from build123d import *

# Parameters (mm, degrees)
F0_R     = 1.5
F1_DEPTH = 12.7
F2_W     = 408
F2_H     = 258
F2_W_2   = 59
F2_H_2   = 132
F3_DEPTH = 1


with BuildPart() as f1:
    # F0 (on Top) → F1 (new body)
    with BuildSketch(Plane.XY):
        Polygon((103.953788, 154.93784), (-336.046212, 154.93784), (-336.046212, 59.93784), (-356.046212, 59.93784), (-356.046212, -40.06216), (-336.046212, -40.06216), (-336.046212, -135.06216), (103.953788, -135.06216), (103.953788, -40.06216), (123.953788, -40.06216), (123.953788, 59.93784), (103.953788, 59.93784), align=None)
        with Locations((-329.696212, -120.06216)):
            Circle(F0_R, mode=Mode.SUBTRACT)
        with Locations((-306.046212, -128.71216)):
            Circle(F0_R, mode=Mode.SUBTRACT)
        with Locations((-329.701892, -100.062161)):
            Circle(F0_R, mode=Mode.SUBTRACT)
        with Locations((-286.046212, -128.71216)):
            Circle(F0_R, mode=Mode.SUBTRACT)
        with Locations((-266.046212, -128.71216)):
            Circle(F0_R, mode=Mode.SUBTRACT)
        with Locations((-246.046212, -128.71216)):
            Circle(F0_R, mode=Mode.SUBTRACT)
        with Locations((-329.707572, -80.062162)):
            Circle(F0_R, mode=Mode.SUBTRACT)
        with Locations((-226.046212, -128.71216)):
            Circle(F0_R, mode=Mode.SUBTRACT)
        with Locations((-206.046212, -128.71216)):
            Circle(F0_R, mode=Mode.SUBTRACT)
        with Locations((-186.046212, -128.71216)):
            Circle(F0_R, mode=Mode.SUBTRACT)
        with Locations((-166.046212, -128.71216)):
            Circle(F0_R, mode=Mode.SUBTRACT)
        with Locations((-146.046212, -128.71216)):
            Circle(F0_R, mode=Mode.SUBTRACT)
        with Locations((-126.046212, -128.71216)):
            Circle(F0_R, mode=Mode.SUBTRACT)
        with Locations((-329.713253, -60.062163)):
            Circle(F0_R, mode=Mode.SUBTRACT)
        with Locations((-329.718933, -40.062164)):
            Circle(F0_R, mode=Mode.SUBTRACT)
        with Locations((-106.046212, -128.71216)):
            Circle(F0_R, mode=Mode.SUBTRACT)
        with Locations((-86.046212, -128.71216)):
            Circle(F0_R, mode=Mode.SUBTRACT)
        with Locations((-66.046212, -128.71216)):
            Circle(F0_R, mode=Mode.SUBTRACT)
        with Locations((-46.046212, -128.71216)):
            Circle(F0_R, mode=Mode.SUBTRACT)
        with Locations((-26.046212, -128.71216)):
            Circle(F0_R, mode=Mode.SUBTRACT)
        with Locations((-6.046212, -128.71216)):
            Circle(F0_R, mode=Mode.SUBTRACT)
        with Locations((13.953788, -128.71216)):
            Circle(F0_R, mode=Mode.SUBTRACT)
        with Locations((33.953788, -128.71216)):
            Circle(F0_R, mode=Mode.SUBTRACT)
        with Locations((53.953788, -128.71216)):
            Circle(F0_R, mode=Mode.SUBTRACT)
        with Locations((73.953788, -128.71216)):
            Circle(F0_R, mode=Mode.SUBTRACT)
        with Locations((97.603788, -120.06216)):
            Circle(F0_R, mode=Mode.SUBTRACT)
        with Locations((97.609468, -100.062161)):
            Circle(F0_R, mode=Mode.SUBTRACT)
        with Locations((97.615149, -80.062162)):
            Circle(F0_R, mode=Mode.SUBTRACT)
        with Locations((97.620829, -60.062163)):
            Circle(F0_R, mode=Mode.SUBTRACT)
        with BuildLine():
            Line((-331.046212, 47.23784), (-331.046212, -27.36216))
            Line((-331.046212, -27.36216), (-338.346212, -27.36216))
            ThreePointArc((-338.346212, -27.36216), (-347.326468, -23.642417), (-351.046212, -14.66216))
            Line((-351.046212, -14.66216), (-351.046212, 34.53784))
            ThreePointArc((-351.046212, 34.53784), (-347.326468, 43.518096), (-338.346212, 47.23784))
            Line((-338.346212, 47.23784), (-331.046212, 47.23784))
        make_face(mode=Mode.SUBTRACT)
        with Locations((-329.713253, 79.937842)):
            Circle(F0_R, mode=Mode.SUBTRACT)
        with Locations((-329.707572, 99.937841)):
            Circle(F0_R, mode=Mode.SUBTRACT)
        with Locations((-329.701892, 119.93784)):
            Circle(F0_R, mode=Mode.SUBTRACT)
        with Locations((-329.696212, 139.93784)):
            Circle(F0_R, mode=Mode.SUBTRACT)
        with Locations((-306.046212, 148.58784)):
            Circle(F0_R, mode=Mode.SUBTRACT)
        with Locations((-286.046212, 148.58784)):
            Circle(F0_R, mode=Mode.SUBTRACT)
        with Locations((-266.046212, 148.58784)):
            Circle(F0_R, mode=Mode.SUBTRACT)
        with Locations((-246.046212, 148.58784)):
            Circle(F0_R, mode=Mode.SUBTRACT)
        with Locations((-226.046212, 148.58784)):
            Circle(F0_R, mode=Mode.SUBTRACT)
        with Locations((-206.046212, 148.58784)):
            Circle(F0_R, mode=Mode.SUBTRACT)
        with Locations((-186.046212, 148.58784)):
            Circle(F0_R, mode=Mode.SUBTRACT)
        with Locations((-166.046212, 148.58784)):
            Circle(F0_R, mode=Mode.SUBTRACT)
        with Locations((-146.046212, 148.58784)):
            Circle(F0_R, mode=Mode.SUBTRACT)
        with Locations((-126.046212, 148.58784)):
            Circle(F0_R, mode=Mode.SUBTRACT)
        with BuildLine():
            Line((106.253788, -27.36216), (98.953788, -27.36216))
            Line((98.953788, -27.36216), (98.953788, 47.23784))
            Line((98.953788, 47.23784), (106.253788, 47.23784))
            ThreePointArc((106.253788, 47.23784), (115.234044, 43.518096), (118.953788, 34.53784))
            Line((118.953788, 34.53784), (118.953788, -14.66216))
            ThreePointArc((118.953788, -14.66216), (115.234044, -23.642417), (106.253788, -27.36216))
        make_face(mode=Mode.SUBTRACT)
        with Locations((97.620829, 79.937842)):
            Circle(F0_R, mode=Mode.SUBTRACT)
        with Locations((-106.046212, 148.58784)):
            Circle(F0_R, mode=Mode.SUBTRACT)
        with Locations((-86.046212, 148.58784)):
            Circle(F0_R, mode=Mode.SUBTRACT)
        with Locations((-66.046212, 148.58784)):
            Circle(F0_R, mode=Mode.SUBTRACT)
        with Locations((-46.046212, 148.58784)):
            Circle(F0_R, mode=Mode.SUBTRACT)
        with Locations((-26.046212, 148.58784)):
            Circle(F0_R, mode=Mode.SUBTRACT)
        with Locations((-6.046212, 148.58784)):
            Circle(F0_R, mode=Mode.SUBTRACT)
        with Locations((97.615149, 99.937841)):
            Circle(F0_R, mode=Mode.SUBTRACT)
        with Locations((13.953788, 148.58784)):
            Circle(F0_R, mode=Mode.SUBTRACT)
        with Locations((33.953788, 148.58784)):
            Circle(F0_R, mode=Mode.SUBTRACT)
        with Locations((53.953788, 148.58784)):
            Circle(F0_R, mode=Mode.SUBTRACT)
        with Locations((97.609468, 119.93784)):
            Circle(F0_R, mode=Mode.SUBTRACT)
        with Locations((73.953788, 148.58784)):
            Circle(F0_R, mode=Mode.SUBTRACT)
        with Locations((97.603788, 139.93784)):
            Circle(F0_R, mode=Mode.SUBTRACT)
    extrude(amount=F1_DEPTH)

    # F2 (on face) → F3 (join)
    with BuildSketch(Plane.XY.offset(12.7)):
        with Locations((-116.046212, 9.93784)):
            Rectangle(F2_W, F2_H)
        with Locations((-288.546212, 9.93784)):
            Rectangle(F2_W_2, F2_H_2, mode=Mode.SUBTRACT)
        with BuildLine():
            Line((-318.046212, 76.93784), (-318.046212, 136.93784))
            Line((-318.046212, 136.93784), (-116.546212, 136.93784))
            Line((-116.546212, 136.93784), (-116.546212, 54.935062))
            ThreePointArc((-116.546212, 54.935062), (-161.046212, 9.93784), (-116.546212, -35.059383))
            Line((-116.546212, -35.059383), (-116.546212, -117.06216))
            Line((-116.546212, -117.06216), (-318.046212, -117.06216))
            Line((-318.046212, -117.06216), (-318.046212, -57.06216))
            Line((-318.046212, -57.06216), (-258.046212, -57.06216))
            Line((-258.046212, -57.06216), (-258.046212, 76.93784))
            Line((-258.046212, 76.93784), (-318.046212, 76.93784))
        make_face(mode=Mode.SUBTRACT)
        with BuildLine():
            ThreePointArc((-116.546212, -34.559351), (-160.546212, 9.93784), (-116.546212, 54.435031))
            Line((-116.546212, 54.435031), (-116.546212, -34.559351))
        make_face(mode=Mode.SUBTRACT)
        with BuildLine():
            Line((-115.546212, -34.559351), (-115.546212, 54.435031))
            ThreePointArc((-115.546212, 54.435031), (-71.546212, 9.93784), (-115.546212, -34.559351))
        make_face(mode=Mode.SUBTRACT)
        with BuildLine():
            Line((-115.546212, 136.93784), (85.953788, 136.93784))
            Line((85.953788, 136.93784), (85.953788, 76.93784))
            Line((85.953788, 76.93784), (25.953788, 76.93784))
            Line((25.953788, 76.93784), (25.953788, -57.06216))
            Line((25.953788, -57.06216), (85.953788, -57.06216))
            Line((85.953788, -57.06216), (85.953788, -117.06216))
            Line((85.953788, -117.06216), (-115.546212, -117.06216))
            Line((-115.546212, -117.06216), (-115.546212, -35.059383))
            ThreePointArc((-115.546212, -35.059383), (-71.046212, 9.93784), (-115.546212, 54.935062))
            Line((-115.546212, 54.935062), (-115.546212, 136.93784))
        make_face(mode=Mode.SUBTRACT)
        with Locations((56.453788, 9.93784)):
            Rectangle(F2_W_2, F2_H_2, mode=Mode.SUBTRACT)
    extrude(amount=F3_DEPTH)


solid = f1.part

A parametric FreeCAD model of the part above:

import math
import FreeCAD as App
import Part
import Sketcher

V = App.Vector

doc = App.newDocument("Part")
params = doc.addObject("Spreadsheet::Sheet", "Params")
for row, (alias, value) in enumerate([
    ("sketch1_diameter", "3 mm"),
    ("sketch1_radius", "12.699999 mm"),
    ("sketch1_width", "440 mm"),
    ("sketch1_width2", "20 mm"),
    ("sketch1_height", "95 mm"),
    ("pad1_length", "12.7 mm"),
    ("sketch2_radius", "45 mm"),
    ("sketch2_radius2", "44.5 mm"),
    ("sketch2_width", "408 mm"),
    ("sketch2_width2", "59 mm"),
    ("sketch2_width3", "60 mm"),
    ("pad2_length", "1 mm"),
], start=1):
    params.set(f"A{row}", alias)
    params.set(f"B{row}", "=" + value)
    params.setAlias(f"B{row}", alias)

body = doc.addObject("PartDesign::Body", "Body")

sketch1 = body.newObject("Sketcher::SketchObject", "Sketch")
sketch1.AttachmentSupport = (doc.getObject("XY_Plane"), [""])
sketch1.MapMode = "FlatFace"
sketch1.addGeometry(Part.LineSegment(V(103.953788, 154.93784, 0), V(-336.046212, 154.93784, 0)), False)
sketch1.addGeometry(Part.LineSegment(V(-336.046212, 154.93784, 0), V(-336.046212, 59.93784, 0)), False)
sketch1.addGeometry(Part.LineSegment(V(-336.046212, 59.93784, 0), V(-356.046212, 59.93784, 0)), False)
sketch1.addGeometry(Part.LineSegment(V(-356.046212, 59.93784, 0), V(-356.046212, -40.06216, 0)), False)
sketch1.addGeometry(Part.LineSegment(V(-356.046212, -40.06216, 0), V(-336.046212, -40.06216, 0)), False)
sketch1.addGeometry(Part.LineSegment(V(-336.046212, -40.06216, 0), V(-336.046212, -135.06216, 0)), False)
sketch1.addGeometry(Part.LineSegment(V(-336.046212, -135.06216, 0), V(103.953788, -135.06216, 0)), False)
sketch1.addGeometry(Part.LineSegment(V(103.953788, -135.06216, 0), V(103.953788, -40.06216, 0)), False)
sketch1.addGeometry(Part.LineSegment(V(103.953788, -40.06216, 0), V(123.953788, -40.06216, 0)), False)
sketch1.addGeometry(Part.LineSegment(V(123.953788, -40.06216, 0), V(123.953788, 59.93784, 0)), False)
sketch1.addGeometry(Part.LineSegment(V(123.953788, 59.93784, 0), V(103.953788, 59.93784, 0)), False)
sketch1.addGeometry(Part.LineSegment(V(103.953788, 59.93784, 0), V(103.953788, 154.93784, 0)), False)
sketch1.addGeometry(Part.Circle(V(-329.696212, -120.06216, 0), V(0, 0, 1), 1.5), False)
sketch1.addGeometry(Part.Circle(V(-306.046212, -128.71216, 0), V(0, 0, 1), 1.5), False)
sketch1.addGeometry(Part.Circle(V(-329.701892, -100.062161, 0), V(0, 0, 1), 1.5), False)
sketch1.addGeometry(Part.Circle(V(-286.046212, -128.71216, 0), V(0, 0, 1), 1.5), False)
sketch1.addGeometry(Part.Circle(V(-266.046212, -128.71216, 0), V(0, 0, 1), 1.5), False)
sketch1.addGeometry(Part.Circle(V(-246.046212, -128.71216, 0), V(0, 0, 1), 1.5), False)
sketch1.addGeometry(Part.Circle(V(-329.707572, -80.062162, 0), V(0, 0, 1), 1.5), False)
sketch1.addGeometry(Part.Circle(V(-226.046212, -128.71216, 0), V(0, 0, 1), 1.5), False)
sketch1.addGeometry(Part.Circle(V(-206.046212, -128.71216, 0), V(0, 0, 1), 1.5), False)
sketch1.addGeometry(Part.Circle(V(-186.046212, -128.71216, 0), V(0, 0, 1), 1.5), False)
sketch1.addGeometry(Part.Circle(V(-166.046212, -128.71216, 0), V(0, 0, 1), 1.5), False)
sketch1.addGeometry(Part.Circle(V(-146.046212, -128.71216, 0), V(0, 0, 1), 1.5), False)
sketch1.addGeometry(Part.Circle(V(-126.046212, -128.71216, 0), V(0, 0, 1), 1.5), False)
sketch1.addGeometry(Part.Circle(V(-329.713253, -60.062163, 0), V(0, 0, 1), 1.5), False)
sketch1.addGeometry(Part.Circle(V(-329.718933, -40.062164, 0), V(0, 0, 1), 1.5), False)
sketch1.addGeometry(Part.LineSegment(V(-338.346212, 47.23784, 0), V(-331.046212, 47.23784, 0)), False)
sketch1.addGeometry(Part.LineSegment(V(-331.046212, 47.23784, 0), V(-331.046212, -27.36216, 0)), False)
sketch1.addGeometry(Part.LineSegment(V(-331.046212, -27.36216, 0), V(-338.346212, -27.36216, 0)), False)
sketch1.addGeometry(Part.ArcOfCircle(Part.Circle(V(-338.346213, -14.662161, 0), V(0, 0, 1), 12.699999), math.radians(179.999994), math.radians(270.000006)), False)
sketch1.addGeometry(Part.LineSegment(V(-351.046212, -14.66216, 0), V(-351.046212, 34.53784, 0)), False)
sketch1.addGeometry(Part.ArcOfCircle(Part.Circle(V(-338.346212, 34.53784, 0), V(0, 0, 1), 12.7), math.radians(90.000002), math.radians(179.999998)), False)
sketch1.addGeometry(Part.Circle(V(-106.046212, -128.71216, 0), V(0, 0, 1), 1.5), False)
sketch1.addGeometry(Part.Circle(V(-86.046212, -128.71216, 0), V(0, 0, 1), 1.5), False)
sketch1.addGeometry(Part.Circle(V(-66.046212, -128.71216, 0), V(0, 0, 1), 1.5), False)
sketch1.addGeometry(Part.Circle(V(-46.046212, -128.71216, 0), V(0, 0, 1), 1.5), False)
sketch1.addGeometry(Part.Circle(V(-26.046212, -128.71216, 0), V(0, 0, 1), 1.5), False)
sketch1.addGeometry(Part.Circle(V(-6.046212, -128.71216, 0), V(0, 0, 1), 1.5), False)
sketch1.addGeometry(Part.Circle(V(13.953788, -128.71216, 0), V(0, 0, 1), 1.5), False)
sketch1.addGeometry(Part.Circle(V(33.953788, -128.71216, 0), V(0, 0, 1), 1.5), False)
sketch1.addGeometry(Part.Circle(V(53.953788, -128.71216, 0), V(0, 0, 1), 1.5), False)
sketch1.addGeometry(Part.Circle(V(73.953788, -128.71216, 0), V(0, 0, 1), 1.5), False)
sketch1.addGeometry(Part.Circle(V(97.603788, -120.06216, 0), V(0, 0, 1), 1.5), False)
sketch1.addGeometry(Part.Circle(V(97.609468, -100.062161, 0), V(0, 0, 1), 1.5), False)
sketch1.addGeometry(Part.Circle(V(97.615149, -80.062162, 0), V(0, 0, 1), 1.5), False)
sketch1.addGeometry(Part.Circle(V(97.620829, -60.062163, 0), V(0, 0, 1), 1.5), False)
sketch1.addGeometry(Part.ArcOfCircle(Part.Circle(V(106.253789, -14.662161, 0), V(0, 0, 1), 12.699999), math.radians(-90.000006), math.radians(0.000006)), False)
sketch1.addGeometry(Part.LineSegment(V(106.253788, -27.36216, 0), V(98.953788, -27.36216, 0)), False)
sketch1.addGeometry(Part.LineSegment(V(98.953788, -27.36216, 0), V(98.953788, 47.23784, 0)), False)
sketch1.addGeometry(Part.LineSegment(V(98.953788, 47.23784, 0), V(106.253788, 47.23784, 0)), False)
sketch1.addGeometry(Part.ArcOfCircle(Part.Circle(V(106.253788, 34.53784, 0), V(0, 0, 1), 12.7), math.radians(0.000002), math.radians(89.999998)), False)
sketch1.addGeometry(Part.LineSegment(V(118.953788, 34.53784, 0), V(118.953788, -14.66216, 0)), False)
sketch1.addGeometry(Part.Circle(V(-329.713253, 79.937842, 0), V(0, 0, 1), 1.5), False)
sketch1.addGeometry(Part.Circle(V(-329.707572, 99.937841, 0), V(0, 0, 1), 1.5), False)
sketch1.addGeometry(Part.Circle(V(-329.701892, 119.93784, 0), V(0, 0, 1), 1.5), False)
sketch1.addGeometry(Part.Circle(V(-329.696212, 139.93784, 0), V(0, 0, 1), 1.5), False)
sketch1.addGeometry(Part.Circle(V(-306.046212, 148.58784, 0), V(0, 0, 1), 1.5), False)
sketch1.addGeometry(Part.Circle(V(-286.046212, 148.58784, 0), V(0, 0, 1), 1.5), False)
sketch1.addGeometry(Part.Circle(V(-266.046212, 148.58784, 0), V(0, 0, 1), 1.5), False)
sketch1.addGeometry(Part.Circle(V(-246.046212, 148.58784, 0), V(0, 0, 1), 1.5), False)
sketch1.addGeometry(Part.Circle(V(-226.046212, 148.58784, 0), V(0, 0, 1), 1.5), False)
sketch1.addGeometry(Part.Circle(V(-206.046212, 148.58784, 0), V(0, 0, 1), 1.5), False)
sketch1.addGeometry(Part.Circle(V(-186.046212, 148.58784, 0), V(0, 0, 1), 1.5), False)
sketch1.addGeometry(Part.Circle(V(-166.046212, 148.58784, 0), V(0, 0, 1), 1.5), False)
sketch1.addGeometry(Part.Circle(V(-146.046212, 148.58784, 0), V(0, 0, 1), 1.5), False)
sketch1.addGeometry(Part.Circle(V(-126.046212, 148.58784, 0), V(0, 0, 1), 1.5), False)
sketch1.addGeometry(Part.Circle(V(97.620829, 79.937842, 0), V(0, 0, 1), 1.5), False)
sketch1.addGeometry(Part.Circle(V(-106.046212, 148.58784, 0), V(0, 0, 1), 1.5), False)
sketch1.addGeometry(Part.Circle(V(-86.046212, 148.58784, 0), V(0, 0, 1), 1.5), False)
sketch1.addGeometry(Part.Circle(V(-66.046212, 148.58784, 0), V(0, 0, 1), 1.5), False)
sketch1.addGeometry(Part.Circle(V(-46.046212, 148.58784, 0), V(0, 0, 1), 1.5), False)
sketch1.addGeometry(Part.Circle(V(-26.046212, 148.58784, 0), V(0, 0, 1), 1.5), False)
sketch1.addGeometry(Part.Circle(V(-6.046212, 148.58784, 0), V(0, 0, 1), 1.5), False)
sketch1.addGeometry(Part.Circle(V(97.615149, 99.937841, 0), V(0, 0, 1), 1.5), False)
sketch1.addGeometry(Part.Circle(V(13.953788, 148.58784, 0), V(0, 0, 1), 1.5), False)
sketch1.addGeometry(Part.Circle(V(33.953788, 148.58784, 0), V(0, 0, 1), 1.5), False)
sketch1.addGeometry(Part.Circle(V(53.953788, 148.58784, 0), V(0, 0, 1), 1.5), False)
sketch1.addGeometry(Part.Circle(V(97.609468, 119.93784, 0), V(0, 0, 1), 1.5), False)
sketch1.addGeometry(Part.Circle(V(73.953788, 148.58784, 0), V(0, 0, 1), 1.5), False)
sketch1.addGeometry(Part.Circle(V(97.603788, 139.93784, 0), V(0, 0, 1), 1.5), False)
sketch1.addConstraint(Sketcher.Constraint("Coincident", 0, 2, 1, 1))
sketch1.addConstraint(Sketcher.Constraint("Coincident", 1, 2, 2, 1))
sketch1.addConstraint(Sketcher.Constraint("Coincident", 2, 2, 3, 1))
sketch1.addConstraint(Sketcher.Constraint("Coincident", 3, 2, 4, 1))
sketch1.addConstraint(Sketcher.Constraint("Coincident", 4, 2, 5, 1))
sketch1.addConstraint(Sketcher.Constraint("Coincident", 5, 2, 6, 1))
sketch1.addConstraint(Sketcher.Constraint("Coincident", 6, 2, 7, 1))
sketch1.addConstraint(Sketcher.Constraint("Coincident", 7, 2, 8, 1))
sketch1.addConstraint(Sketcher.Constraint("Coincident", 8, 2, 9, 1))
sketch1.addConstraint(Sketcher.Constraint("Coincident", 9, 2, 10, 1))
sketch1.addConstraint(Sketcher.Constraint("Coincident", 10, 2, 11, 1))
sketch1.addConstraint(Sketcher.Constraint("Coincident", 11, 2, 0, 1))
sketch1.addConstraint(Sketcher.Constraint("Coincident", 27, 2, 28, 1))
sketch1.addConstraint(Sketcher.Constraint("Coincident", 28, 2, 29, 1))
sketch1.addConstraint(Sketcher.Constraint("Tangent", 29, 2, 30, 2))
sketch1.addConstraint(Sketcher.Constraint("Tangent", 30, 1, 31, 1))
sketch1.addConstraint(Sketcher.Constraint("Tangent", 31, 2, 32, 2))
sketch1.addConstraint(Sketcher.Constraint("Tangent", 32, 1, 27, 1))
sketch1.addConstraint(Sketcher.Constraint("Tangent", 47, 1, 48, 1))
sketch1.addConstraint(Sketcher.Constraint("Coincident", 48, 2, 49, 1))
sketch1.addConstraint(Sketcher.Constraint("Coincident", 49, 2, 50, 1))
sketch1.addConstraint(Sketcher.Constraint("Tangent", 50, 2, 51, 2))
sketch1.addConstraint(Sketcher.Constraint("Tangent", 51, 1, 52, 1))
sketch1.addConstraint(Sketcher.Constraint("Tangent", 52, 2, 47, 2))
sketch1.addConstraint(Sketcher.Constraint("Horizontal", 0))
sketch1.addConstraint(Sketcher.Constraint("Vertical", 1))
sketch1.addConstraint(Sketcher.Constraint("Horizontal", 2))
sketch1.addConstraint(Sketcher.Constraint("Vertical", 3))
sketch1.addConstraint(Sketcher.Constraint("Horizontal", 4))
sketch1.addConstraint(Sketcher.Constraint("Vertical", 5))
sketch1.addConstraint(Sketcher.Constraint("Horizontal", 6))
sketch1.addConstraint(Sketcher.Constraint("Vertical", 7))
sketch1.addConstraint(Sketcher.Constraint("Horizontal", 8))
sketch1.addConstraint(Sketcher.Constraint("Vertical", 9))
sketch1.addConstraint(Sketcher.Constraint("Horizontal", 10))
sketch1.addConstraint(Sketcher.Constraint("Vertical", 11))
sketch1.addConstraint(Sketcher.Constraint("Horizontal", 27))
sketch1.addConstraint(Sketcher.Constraint("Vertical", 28))
sketch1.addConstraint(Sketcher.Constraint("Horizontal", 29))
sketch1.addConstraint(Sketcher.Constraint("Vertical", 31))
sketch1.addConstraint(Sketcher.Constraint("Horizontal", 48))
sketch1.addConstraint(Sketcher.Constraint("Vertical", 49))
sketch1.addConstraint(Sketcher.Constraint("Horizontal", 50))
sketch1.addConstraint(Sketcher.Constraint("Vertical", 52))
sketch1.addConstraint(Sketcher.Constraint("Equal", 12, 13))
sketch1.addConstraint(Sketcher.Constraint("Equal", 13, 14))
sketch1.addConstraint(Sketcher.Constraint("Equal", 14, 15))
sketch1.addConstraint(Sketcher.Constraint("Equal", 15, 16))
sketch1.addConstraint(Sketcher.Constraint("Equal", 16, 17))
sketch1.addConstraint(Sketcher.Constraint("Equal", 17, 18))
sketch1.addConstraint(Sketcher.Constraint("Equal", 18, 19))
sketch1.addConstraint(Sketcher.Constraint("Equal", 19, 20))
sketch1.addConstraint(Sketcher.Constraint("Equal", 20, 21))
sketch1.addConstraint(Sketcher.Constraint("Equal", 21, 22))
sketch1.addConstraint(Sketcher.Constraint("Equal", 22, 23))
sketch1.addConstraint(Sketcher.Constraint("Equal", 23, 24))
sketch1.addConstraint(Sketcher.Constraint("Equal", 24, 25))
sketch1.addConstraint(Sketcher.Constraint("Equal", 25, 26))
sketch1.addConstraint(Sketcher.Constraint("Equal", 30, 32))
sketch1.addConstraint(Sketcher.Constraint("Equal", 26, 33))
sketch1.addConstraint(Sketcher.Constraint("Equal", 33, 34))
sketch1.addConstraint(Sketcher.Constraint("Equal", 34, 35))
sketch1.addConstraint(Sketcher.Constraint("Equal", 35, 36))
sketch1.addConstraint(Sketcher.Constraint("Equal", 36, 37))
sketch1.addConstraint(Sketcher.Constraint("Equal", 37, 38))
sketch1.addConstraint(Sketcher.Constraint("Equal", 38, 39))
sketch1.addConstraint(Sketcher.Constraint("Equal", 39, 40))
sketch1.addConstraint(Sketcher.Constraint("Equal", 40, 41))
sketch1.addConstraint(Sketcher.Constraint("Equal", 41, 42))
sketch1.addConstraint(Sketcher.Constraint("Equal", 42, 43))
sketch1.addConstraint(Sketcher.Constraint("Equal", 43, 44))
sketch1.addConstraint(Sketcher.Constraint("Equal", 44, 45))
sketch1.addConstraint(Sketcher.Constraint("Equal", 45, 46))
sketch1.addConstraint(Sketcher.Constraint("Equal", 32, 47))
sketch1.addConstraint(Sketcher.Constraint("Equal", 47, 51))
sketch1.addConstraint(Sketcher.Constraint("Equal", 46, 53))
sketch1.addConstraint(Sketcher.Constraint("Equal", 53, 54))
sketch1.addConstraint(Sketcher.Constraint("Equal", 54, 55))
sketch1.addConstraint(Sketcher.Constraint("Equal", 55, 56))
sketch1.addConstraint(Sketcher.Constraint("Equal", 56, 57))
sketch1.addConstraint(Sketcher.Constraint("Equal", 57, 58))
sketch1.addConstraint(Sketcher.Constraint("Equal", 58, 59))
sketch1.addConstraint(Sketcher.Constraint("Equal", 59, 60))
sketch1.addConstraint(Sketcher.Constraint("Equal", 60, 61))
sketch1.addConstraint(Sketcher.Constraint("Equal", 61, 62))
sketch1.addConstraint(Sketcher.Constraint("Equal", 62, 63))
sketch1.addConstraint(Sketcher.Constraint("Equal", 63, 64))
sketch1.addConstraint(Sketcher.Constraint("Equal", 64, 65))
sketch1.addConstraint(Sketcher.Constraint("Equal", 65, 66))
sketch1.addConstraint(Sketcher.Constraint("Equal", 66, 67))
sketch1.addConstraint(Sketcher.Constraint("Equal", 67, 68))
sketch1.addConstraint(Sketcher.Constraint("Equal", 68, 69))
sketch1.addConstraint(Sketcher.Constraint("Equal", 69, 70))
sketch1.addConstraint(Sketcher.Constraint("Equal", 70, 71))
sketch1.addConstraint(Sketcher.Constraint("Equal", 71, 72))
sketch1.addConstraint(Sketcher.Constraint("Equal", 72, 73))
sketch1.addConstraint(Sketcher.Constraint("Equal", 73, 74))
sketch1.addConstraint(Sketcher.Constraint("Equal", 74, 75))
sketch1.addConstraint(Sketcher.Constraint("Equal", 75, 76))
sketch1.addConstraint(Sketcher.Constraint("Equal", 76, 77))
sketch1.addConstraint(Sketcher.Constraint("Equal", 77, 78))
sketch1.addConstraint(Sketcher.Constraint("Equal", 78, 79))
sketch1.addConstraint(Sketcher.Constraint("Equal", 79, 80))
sketch1.addConstraint(Sketcher.Constraint("Horizontal", 13, 3, 15, 3))
sketch1.addConstraint(Sketcher.Constraint("Horizontal", 15, 3, 16, 3))
sketch1.addConstraint(Sketcher.Constraint("Horizontal", 16, 3, 17, 3))
sketch1.addConstraint(Sketcher.Constraint("Horizontal", 17, 3, 19, 3))
sketch1.addConstraint(Sketcher.Constraint("Horizontal", 19, 3, 20, 3))
sketch1.addConstraint(Sketcher.Constraint("Horizontal", 20, 3, 21, 3))
sketch1.addConstraint(Sketcher.Constraint("Horizontal", 21, 3, 22, 3))
sketch1.addConstraint(Sketcher.Constraint("Horizontal", 22, 3, 23, 3))
sketch1.addConstraint(Sketcher.Constraint("Horizontal", 23, 3, 24, 3))
sketch1.addConstraint(Sketcher.Constraint("Horizontal", 24, 3, 33, 3))
sketch1.addConstraint(Sketcher.Constraint("Horizontal", 33, 3, 34, 3))
sketch1.addConstraint(Sketcher.Constraint("Horizontal", 34, 3, 35, 3))
sketch1.addConstraint(Sketcher.Constraint("Horizontal", 35, 3, 36, 3))
sketch1.addConstraint(Sketcher.Constraint("Horizontal", 36, 3, 37, 3))
sketch1.addConstraint(Sketcher.Constraint("Horizontal", 37, 3, 38, 3))
sketch1.addConstraint(Sketcher.Constraint("Horizontal", 38, 3, 39, 3))
sketch1.addConstraint(Sketcher.Constraint("Horizontal", 39, 3, 40, 3))
sketch1.addConstraint(Sketcher.Constraint("Horizontal", 40, 3, 41, 3))
sketch1.addConstraint(Sketcher.Constraint("Horizontal", 41, 3, 42, 3))
sketch1.addConstraint(Sketcher.Constraint("Horizontal", 12, 3, 43, 3))
sketch1.addConstraint(Sketcher.Constraint("Horizontal", 14, 3, 44, 3))
sketch1.addConstraint(Sketcher.Constraint("Horizontal", 18, 3, 45, 3))
sketch1.addConstraint(Sketcher.Constraint("Horizontal", 25, 3, 46, 3))
sketch1.addConstraint(Sketcher.Constraint("Horizontal", 30, 3, 47, 3))
sketch1.addConstraint(Sketcher.Constraint("Horizontal", 32, 3, 51, 3))
sketch1.addConstraint(Sketcher.Constraint("Horizontal", 57, 3, 58, 3))
sketch1.addConstraint(Sketcher.Constraint("Horizontal", 58, 3, 59, 3))
sketch1.addConstraint(Sketcher.Constraint("Horizontal", 59, 3, 60, 3))
sketch1.addConstraint(Sketcher.Constraint("Horizontal", 60, 3, 61, 3))
sketch1.addConstraint(Sketcher.Constraint("Horizontal", 61, 3, 62, 3))
sketch1.addConstraint(Sketcher.Constraint("Horizontal", 62, 3, 63, 3))
sketch1.addConstraint(Sketcher.Constraint("Horizontal", 63, 3, 64, 3))
sketch1.addConstraint(Sketcher.Constraint("Horizontal", 64, 3, 65, 3))
sketch1.addConstraint(Sketcher.Constraint("Horizontal", 65, 3, 66, 3))
sketch1.addConstraint(Sketcher.Constraint("Horizontal", 53, 3, 67, 3))
sketch1.addConstraint(Sketcher.Constraint("Horizontal", 66, 3, 68, 3))
sketch1.addConstraint(Sketcher.Constraint("Horizontal", 68, 3, 69, 3))
sketch1.addConstraint(Sketcher.Constraint("Horizontal", 69, 3, 70, 3))
sketch1.addConstraint(Sketcher.Constraint("Horizontal", 70, 3, 71, 3))
sketch1.addConstraint(Sketcher.Constraint("Horizontal", 71, 3, 72, 3))
sketch1.addConstraint(Sketcher.Constraint("Horizontal", 72, 3, 73, 3))
sketch1.addConstraint(Sketcher.Constraint("Horizontal", 54, 3, 74, 3))
sketch1.addConstraint(Sketcher.Constraint("Horizontal", 73, 3, 75, 3))
sketch1.addConstraint(Sketcher.Constraint("Horizontal", 75, 3, 76, 3))
sketch1.addConstraint(Sketcher.Constraint("Horizontal", 76, 3, 77, 3))
sketch1.addConstraint(Sketcher.Constraint("Horizontal", 55, 3, 78, 3))
sketch1.addConstraint(Sketcher.Constraint("Horizontal", 77, 3, 79, 3))
sketch1.addConstraint(Sketcher.Constraint("Horizontal", 56, 3, 80, 3))
sketch1.addConstraint(Sketcher.Constraint("Horizontal", 4, 2, 7, 2))
sketch1.addConstraint(Sketcher.Constraint("Horizontal", 2, 2, 9, 2))
sketch1.addConstraint(Sketcher.Constraint("Vertical", 25, 3, 53, 3))
sketch1.addConstraint(Sketcher.Constraint("Vertical", 18, 3, 54, 3))
sketch1.addConstraint(Sketcher.Constraint("Vertical", 14, 3, 55, 3))
sketch1.addConstraint(Sketcher.Constraint("Vertical", 12, 3, 56, 3))
sketch1.addConstraint(Sketcher.Constraint("Vertical", 13, 3, 57, 3))
sketch1.addConstraint(Sketcher.Constraint("Vertical", 15, 3, 58, 3))
sketch1.addConstraint(Sketcher.Constraint("Vertical", 16, 3, 59, 3))
sketch1.addConstraint(Sketcher.Constraint("Vertical", 17, 3, 60, 3))
sketch1.addConstraint(Sketcher.Constraint("Vertical", 19, 3, 61, 3))
sketch1.addConstraint(Sketcher.Constraint("Vertical", 20, 3, 62, 3))
sketch1.addConstraint(Sketcher.Constraint("Vertical", 21, 3, 63, 3))
sketch1.addConstraint(Sketcher.Constraint("Vertical", 22, 3, 64, 3))
sketch1.addConstraint(Sketcher.Constraint("Vertical", 23, 3, 65, 3))
sketch1.addConstraint(Sketcher.Constraint("Vertical", 24, 3, 66, 3))
sketch1.addConstraint(Sketcher.Constraint("Vertical", 46, 3, 67, 3))
sketch1.addConstraint(Sketcher.Constraint("Vertical", 33, 3, 68, 3))
sketch1.addConstraint(Sketcher.Constraint("Vertical", 34, 3, 69, 3))
sketch1.addConstraint(Sketcher.Constraint("Vertical", 35, 3, 70, 3))
sketch1.addConstraint(Sketcher.Constraint("Vertical", 36, 3, 71, 3))
sketch1.addConstraint(Sketcher.Constraint("Vertical", 37, 3, 72, 3))
sketch1.addConstraint(Sketcher.Constraint("Vertical", 38, 3, 73, 3))
sketch1.addConstraint(Sketcher.Constraint("Vertical", 45, 3, 74, 3))
sketch1.addConstraint(Sketcher.Constraint("Vertical", 39, 3, 75, 3))
sketch1.addConstraint(Sketcher.Constraint("Vertical", 40, 3, 76, 3))
sketch1.addConstraint(Sketcher.Constraint("Vertical", 41, 3, 77, 3))
sketch1.addConstraint(Sketcher.Constraint("Vertical", 44, 3, 78, 3))
sketch1.addConstraint(Sketcher.Constraint("Vertical", 42, 3, 79, 3))
sketch1.addConstraint(Sketcher.Constraint("Vertical", 43, 3, 80, 3))
sketch1.addConstraint(Sketcher.Constraint("Vertical", 1, 2, 4, 2))
sketch1.addConstraint(Sketcher.Constraint("Vertical", 7, 2, 10, 2))
sketch1.addConstraint(Sketcher.Constraint("Equal", 4, 8))
sketch1.addConstraint(Sketcher.Constraint("Equal", 29, 48))
sketch1.addConstraint(Sketcher.Constraint("Equal", 1, 5))
sketch1.addConstraint(Sketcher.Constraint("Diameter", 12, 3.0))
sketch1.addConstraint(Sketcher.Constraint("Radius", 30, 12.699999))
sketch1.addConstraint(Sketcher.Constraint("DistanceX", 0, 2, 0, 1, 440.0))
sketch1.addConstraint(Sketcher.Constraint("DistanceX", 2, 2, 2, 1, 20.0))
sketch1.addConstraint(Sketcher.Constraint("DistanceY", 1, 2, 1, 1, 95.0))
sketch1.addConstraint(Sketcher.Constraint("DistanceY", 3, 2, 3, 1, 100.0))
sketch1.addConstraint(Sketcher.Constraint("DistanceX", 27, 1, 27, 2, 7.3))
sketch1.addConstraint(Sketcher.Constraint("DistanceY", 28, 2, 28, 1, 74.6))
sketch1.addConstraint(Sketcher.Constraint("DistanceX", 12, 3, -1, 1, 329.696212))
sketch1.addConstraint(Sketcher.Constraint("DistanceY", 12, 3, -1, 1, 120.06216))
sketch1.addConstraint(Sketcher.Constraint("DistanceY", 13, 3, -1, 1, 128.71216))
sketch1.addConstraint(Sketcher.Constraint("DistanceX", 14, 3, -1, 1, 329.701892))
sketch1.addConstraint(Sketcher.Constraint("DistanceY", 14, 3, -1, 1, 100.062161))
sketch1.addConstraint(Sketcher.Constraint("DistanceX", 17, 3, -1, 1, 246.046212))
sketch1.addConstraint(Sketcher.Constraint("DistanceY", 18, 3, -1, 1, 80.062162))
sketch1.addConstraint(Sketcher.Constraint("DistanceX", 19, 3, -1, 1, 226.046212))
sketch1.addConstraint(Sketcher.Constraint("DistanceX", 20, 3, -1, 1, 206.046212))
sketch1.addConstraint(Sketcher.Constraint("DistanceX", 21, 3, -1, 1, 186.046212))
sketch1.addConstraint(Sketcher.Constraint("DistanceX", 22, 3, -1, 1, 166.046212))
sketch1.addConstraint(Sketcher.Constraint("DistanceX", 23, 3, -1, 1, 146.046212))
sketch1.addConstraint(Sketcher.Constraint("DistanceX", 24, 3, -1, 1, 126.046212))
sketch1.addConstraint(Sketcher.Constraint("DistanceY", 30, 3, -1, 1, 14.662161))
sketch1.addConstraint(Sketcher.Constraint("DistanceX", 32, 3, -1, 1, 338.346212))
sketch1.addConstraint(Sketcher.Constraint("DistanceX", 33, 3, -1, 1, 106.046212))
sketch1.addConstraint(Sketcher.Constraint("DistanceX", 34, 3, -1, 1, 86.046212))
sketch1.addConstraint(Sketcher.Constraint("DistanceX", 35, 3, -1, 1, 66.046212))
sketch1.addConstraint(Sketcher.Constraint("DistanceX", 36, 3, -1, 1, 46.046212))
sketch1.addConstraint(Sketcher.Constraint("DistanceX", 38, 3, -1, 1, 6.046212))
sketch1.addConstraint(Sketcher.Constraint("DistanceX", -1, 1, 40, 3, 33.953788))
sketch1.addConstraint(Sketcher.Constraint("DistanceX", -1, 1, 41, 3, 53.953788))
sketch1.addConstraint(Sketcher.Constraint("DistanceX", -1, 1, 42, 3, 73.953788))
sketch1.addConstraint(Sketcher.Constraint("DistanceX", -1, 1, 44, 3, 97.609468))
sketch1.addConstraint(Sketcher.Constraint("DistanceX", -1, 1, 45, 3, 97.615149))
sketch1.addConstraint(Sketcher.Constraint("DistanceX", -1, 1, 46, 3, 97.620829))
sketch1.addConstraint(Sketcher.Constraint("DistanceX", -1, 1, 47, 3, 106.253789))
sketch1.addConstraint(Sketcher.Constraint("DistanceY", -1, 1, 54, 3, 99.937841))
sketch1.addConstraint(Sketcher.Constraint("DistanceY", -1, 1, 55, 3, 119.93784))
sketch1.addConstraint(Sketcher.Constraint("DistanceY", -1, 1, 56, 3, 139.93784))
sketch1.addConstraint(Sketcher.Constraint("DistanceY", -1, 1, 57, 3, 148.58784))
sketch1.addConstraint(Sketcher.Constraint("DistanceY", -1, 1, 0, 2, 154.93784))
sketch1.addConstraint(Sketcher.Constraint("DistanceX", -1, 1, 6, 2, 103.953788))
sketch1.addConstraint(Sketcher.Constraint("DistanceX", 13, 3, -1, 1, 306.046212))
sketch1.addConstraint(Sketcher.Constraint("DistanceX", 15, 3, -1, 1, 286.046212))
sketch1.addConstraint(Sketcher.Constraint("DistanceX", 16, 3, -1, 1, 266.046212))
sketch1.addConstraint(Sketcher.Constraint("DistanceX", 18, 3, -1, 1, 329.707572))
sketch1.addConstraint(Sketcher.Constraint("DistanceX", 25, 3, -1, 1, 329.713253))
sketch1.addConstraint(Sketcher.Constraint("DistanceY", 25, 3, -1, 1, 60.062163))
sketch1.addConstraint(Sketcher.Constraint("DistanceX", 26, 3, -1, 1, 329.718933))
sketch1.addConstraint(Sketcher.Constraint("DistanceY", 26, 3, -1, 1, 40.062164))
sketch1.addConstraint(Sketcher.Constraint("DistanceX", 37, 3, -1, 1, 26.046212))
sketch1.addConstraint(Sketcher.Constraint("DistanceX", -1, 1, 39, 3, 13.953788))
sketch1.addConstraint(Sketcher.Constraint("DistanceX", -1, 1, 43, 3, 97.603788))
sketch1.addConstraint(Sketcher.Constraint("DistanceY", -1, 1, 53, 3, 79.937842))
sketch1.setExpression("Constraints[186]", "Params.sketch1_diameter")
sketch1.setExpression("Constraints[187]", "Params.sketch1_radius")
sketch1.setExpression("Constraints[188]", "Params.sketch1_width")
sketch1.setExpression("Constraints[189]", "Params.sketch1_width2")
sketch1.setExpression("Constraints[190]", "Params.sketch1_height")
pad1 = body.newObject("PartDesign::Pad", "Pad")
pad1.Profile = sketch1
pad1.setExpression("Length", "Params.pad1_length")

sketch2 = body.newObject("Sketcher::SketchObject", "Sketch001")
sketch2.AttachmentSupport = (doc.getObject("XY_Plane"), [""])
sketch2.MapMode = "FlatFace"
sketch2.AttachmentOffset = App.Placement(V(0, 0, 12.7), App.Rotation())
sketch2.addGeometry(Part.LineSegment(V(-320.046212, 138.93784, 0), V(-320.046212, -119.06216, 0)), False)
sketch2.addGeometry(Part.LineSegment(V(-320.046212, -119.06216, 0), V(87.953788, -119.06216, 0)), False)
sketch2.addGeometry(Part.LineSegment(V(87.953788, -119.06216, 0), V(87.953788, 138.93784, 0)), False)
sketch2.addGeometry(Part.LineSegment(V(87.953788, 138.93784, 0), V(-320.046212, 138.93784, 0)), False)
sketch2.addGeometry(Part.LineSegment(V(-259.046212, -56.06216, 0), V(-318.046212, -56.06216, 0)), False)
sketch2.addGeometry(Part.LineSegment(V(-318.046212, -56.06216, 0), V(-318.046212, 75.93784, 0)), False)
sketch2.addGeometry(Part.LineSegment(V(-318.046212, 75.93784, 0), V(-259.046212, 75.93784, 0)), False)
sketch2.addGeometry(Part.LineSegment(V(-259.046212, 75.93784, 0), V(-259.046212, -56.06216, 0)), False)
sketch2.addGeometry(Part.LineSegment(V(-258.046212, 76.93784, 0), V(-318.046212, 76.93784, 0)), False)
sketch2.addGeometry(Part.LineSegment(V(-318.046212, 76.93784, 0), V(-318.046212, 136.93784, 0)), False)
sketch2.addGeometry(Part.LineSegment(V(-318.046212, 136.93784, 0), V(-116.546212, 136.93784, 0)), False)
sketch2.addGeometry(Part.LineSegment(V(-116.546212, 136.93784, 0), V(-116.546212, 54.935062, 0)), False)
sketch2.addGeometry(Part.ArcOfCircle(Part.Circle(V(-116.046212, 9.93784, 0), V(0, 0, 1), 45), math.radians(90.636633), math.radians(269.363367)), False)
sketch2.addGeometry(Part.LineSegment(V(-116.546212, -35.059383, 0), V(-116.546212, -117.06216, 0)), False)
sketch2.addGeometry(Part.LineSegment(V(-116.546212, -117.06216, 0), V(-318.046212, -117.06216, 0)), False)
sketch2.addGeometry(Part.LineSegment(V(-318.046212, -117.06216, 0), V(-318.046212, -57.06216, 0)), False)
sketch2.addGeometry(Part.LineSegment(V(-318.046212, -57.06216, 0), V(-258.046212, -57.06216, 0)), False)
sketch2.addGeometry(Part.LineSegment(V(-258.046212, -57.06216, 0), V(-258.046212, 76.93784, 0)), False)
sketch2.addGeometry(Part.LineSegment(V(-116.546212, 54.435031, 0), V(-116.546212, -34.559351, 0)), False)
sketch2.addGeometry(Part.ArcOfCircle(Part.Circle(V(-116.046212, 9.93784, 0), V(0, 0, 1), 44.5), math.radians(90.643786), math.radians(269.356214)), False)
sketch2.addGeometry(Part.ArcOfCircle(Part.Circle(V(-116.046212, 9.93784, 0), V(0, 0, 1), 44.5), math.radians(-89.356214), math.radians(89.356214)), False)
sketch2.addGeometry(Part.LineSegment(V(-115.546212, -34.559351, 0), V(-115.546212, 54.435031, 0)), False)
sketch2.addGeometry(Part.LineSegment(V(-115.546212, 54.935062, 0), V(-115.546212, 136.93784, 0)), False)
sketch2.addGeometry(Part.LineSegment(V(-115.546212, 136.93784, 0), V(85.953788, 136.93784, 0)), False)
sketch2.addGeometry(Part.LineSegment(V(85.953788, 136.93784, 0), V(85.953788, 76.93784, 0)), False)
sketch2.addGeometry(Part.LineSegment(V(85.953788, 76.93784, 0), V(25.953788, 76.93784, 0)), False)
sketch2.addGeometry(Part.LineSegment(V(25.953788, 76.93784, 0), V(25.953788, -57.06216, 0)), False)
sketch2.addGeometry(Part.LineSegment(V(25.953788, -57.06216, 0), V(85.953788, -57.06216, 0)), False)
sketch2.addGeometry(Part.LineSegment(V(85.953788, -57.06216, 0), V(85.953788, -117.06216, 0)), False)
sketch2.addGeometry(Part.LineSegment(V(85.953788, -117.06216, 0), V(-115.546212, -117.06216, 0)), False)
sketch2.addGeometry(Part.LineSegment(V(-115.546212, -117.06216, 0), V(-115.546212, -35.059383, 0)), False)
sketch2.addGeometry(Part.ArcOfCircle(Part.Circle(V(-116.046212, 9.93784, 0), V(0, 0, 1), 45), math.radians(-89.363367), math.radians(89.363367)), False)
sketch2.addGeometry(Part.LineSegment(V(85.953788, -56.06216, 0), V(26.953788, -56.06216, 0)), False)
sketch2.addGeometry(Part.LineSegment(V(26.953788, -56.06216, 0), V(26.953788, 75.93784, 0)), False)
sketch2.addGeometry(Part.LineSegment(V(26.953788, 75.93784, 0), V(85.953788, 75.93784, 0)), False)
sketch2.addGeometry(Part.LineSegment(V(85.953788, 75.93784, 0), V(85.953788, -56.06216, 0)), False)
sketch2.addConstraint(Sketcher.Constraint("Coincident", 0, 2, 1, 1))
sketch2.addConstraint(Sketcher.Constraint("Coincident", 1, 2, 2, 1))
sketch2.addConstraint(Sketcher.Constraint("Coincident", 2, 2, 3, 1))
sketch2.addConstraint(Sketcher.Constraint("Coincident", 3, 2, 0, 1))
sketch2.addConstraint(Sketcher.Constraint("Coincident", 4, 2, 5, 1))
sketch2.addConstraint(Sketcher.Constraint("Coincident", 5, 2, 6, 1))
sketch2.addConstraint(Sketcher.Constraint("Coincident", 6, 2, 7, 1))
sketch2.addConstraint(Sketcher.Constraint("Coincident", 7, 2, 4, 1))
sketch2.addConstraint(Sketcher.Constraint("Coincident", 8, 2, 9, 1))
sketch2.addConstraint(Sketcher.Constraint("Coincident", 9, 2, 10, 1))
sketch2.addConstraint(Sketcher.Constraint("Coincident", 10, 2, 11, 1))
sketch2.addConstraint(Sketcher.Constraint("Coincident", 11, 2, 12, 1))
sketch2.addConstraint(Sketcher.Constraint("Coincident", 12, 2, 13, 1))
sketch2.addConstraint(Sketcher.Constraint("Coincident", 13, 2, 14, 1))
sketch2.addConstraint(Sketcher.Constraint("Coincident", 14, 2, 15, 1))
sketch2.addConstraint(Sketcher.Constraint("Coincident", 15, 2, 16, 1))
sketch2.addConstraint(Sketcher.Constraint("Coincident", 16, 2, 17, 1))
sketch2.addConstraint(Sketcher.Constraint("Coincident", 17, 2, 8, 1))
sketch2.addConstraint(Sketcher.Constraint("Coincident", 18, 1, 19, 1))
sketch2.addConstraint(Sketcher.Constraint("Coincident", 19, 2, 18, 2))
sketch2.addConstraint(Sketcher.Constraint("Coincident", 20, 1, 21, 1))
sketch2.addConstraint(Sketcher.Constraint("Coincident", 21, 2, 20, 2))
sketch2.addConstraint(Sketcher.Constraint("Coincident", 22, 2, 23, 1))
sketch2.addConstraint(Sketcher.Constraint("Coincident", 23, 2, 24, 1))
sketch2.addConstraint(Sketcher.Constraint("Coincident", 24, 2, 25, 1))
sketch2.addConstraint(Sketcher.Constraint("Coincident", 25, 2, 26, 1))
sketch2.addConstraint(Sketcher.Constraint("Coincident", 26, 2, 27, 1))
sketch2.addConstraint(Sketcher.Constraint("Coincident", 27, 2, 28, 1))
sketch2.addConstraint(Sketcher.Constraint("Coincident", 28, 2, 29, 1))
sketch2.addConstraint(Sketcher.Constraint("Coincident", 29, 2, 30, 1))
sketch2.addConstraint(Sketcher.Constraint("Coincident", 30, 2, 31, 1))
sketch2.addConstraint(Sketcher.Constraint("Coincident", 31, 2, 22, 1))
sketch2.addConstraint(Sketcher.Constraint("Coincident", 32, 2, 33, 1))
sketch2.addConstraint(Sketcher.Constraint("Coincident", 33, 2, 34, 1))
sketch2.addConstraint(Sketcher.Constraint("Coincident", 34, 2, 35, 1))
sketch2.addConstraint(Sketcher.Constraint("Coincident", 35, 2, 32, 1))
sketch2.addConstraint(Sketcher.Constraint("Vertical", 0))
sketch2.addConstraint(Sketcher.Constraint("Horizontal", 1))
sketch2.addConstraint(Sketcher.Constraint("Vertical", 2))
sketch2.addConstraint(Sketcher.Constraint("Horizontal", 3))
sketch2.addConstraint(Sketcher.Constraint("Horizontal", 4))
sketch2.addConstraint(Sketcher.Constraint("Vertical", 5))
sketch2.addConstraint(Sketcher.Constraint("Horizontal", 6))
sketch2.addConstraint(Sketcher.Constraint("Vertical", 7))
sketch2.addConstraint(Sketcher.Constraint("Horizontal", 8))
sketch2.addConstraint(Sketcher.Constraint("Vertical", 9))
sketch2.addConstraint(Sketcher.Constraint("Horizontal", 10))
sketch2.addConstraint(Sketcher.Constraint("Vertical", 11))
sketch2.addConstraint(Sketcher.Constraint("Vertical", 13))
sketch2.addConstraint(Sketcher.Constraint("Horizontal", 14))
sketch2.addConstraint(Sketcher.Constraint("Vertical", 15))
sketch2.addConstraint(Sketcher.Constraint("Horizontal", 16))
sketch2.addConstraint(Sketcher.Constraint("Vertical", 17))
sketch2.addConstraint(Sketcher.Constraint("Vertical", 18))
sketch2.addConstraint(Sketcher.Constraint("Vertical", 21))
sketch2.addConstraint(Sketcher.Constraint("Vertical", 22))
sketch2.addConstraint(Sketcher.Constraint("Horizontal", 23))
sketch2.addConstraint(Sketcher.Constraint("Vertical", 24))
sketch2.addConstraint(Sketcher.Constraint("Horizontal", 25))
sketch2.addConstraint(Sketcher.Constraint("Vertical", 26))
sketch2.addConstraint(Sketcher.Constraint("Horizontal", 27))
sketch2.addConstraint(Sketcher.Constraint("Vertical", 28))
sketch2.addConstraint(Sketcher.Constraint("Horizontal", 29))
sketch2.addConstraint(Sketcher.Constraint("Vertical", 30))
sketch2.addConstraint(Sketcher.Constraint("Horizontal", 32))
sketch2.addConstraint(Sketcher.Constraint("Vertical", 33))
sketch2.addConstraint(Sketcher.Constraint("Horizontal", 34))
sketch2.addConstraint(Sketcher.Constraint("Vertical", 35))
sketch2.addConstraint(Sketcher.Constraint("Coincident", 19, 3, 12, 3))
sketch2.addConstraint(Sketcher.Constraint("Coincident", 20, 3, 12, 3))
sketch2.addConstraint(Sketcher.Constraint("Coincident", 31, 3, 12, 3))
sketch2.addConstraint(Sketcher.Constraint("Equal", 19, 20))
sketch2.addConstraint(Sketcher.Constraint("Equal", 12, 31))
sketch2.addConstraint(Sketcher.Constraint("Horizontal", 19, 2, 20, 1))
sketch2.addConstraint(Sketcher.Constraint("Horizontal", 10, 2, 22, 2))
sketch2.addConstraint(Sketcher.Constraint("Horizontal", 17, 2, 24, 2))
sketch2.addConstraint(Sketcher.Constraint("Horizontal", 16, 2, 26, 2))
sketch2.addConstraint(Sketcher.Constraint("Horizontal", 14, 2, 28, 2))
sketch2.addConstraint(Sketcher.Constraint("Horizontal", 12, 2, 30, 2))
sketch2.addConstraint(Sketcher.Constraint("Horizontal", 11, 2, 31, 2))
sketch2.addConstraint(Sketcher.Constraint("Horizontal", 7, 2, 32, 2))
sketch2.addConstraint(Sketcher.Constraint("Horizontal", 6, 2, 33, 2))
sketch2.addConstraint(Sketcher.Constraint("Vertical", 5, 2, 8, 2))
sketch2.addConstraint(Sketcher.Constraint("Vertical", 11, 2, 12, 2))
sketch2.addConstraint(Sketcher.Constraint("Vertical", 9, 2, 14, 2))
sketch2.addConstraint(Sketcher.Constraint("Vertical", 13, 2, 18, 1))
sketch2.addConstraint(Sketcher.Constraint("Vertical", 24, 2, 27, 2))
sketch2.addConstraint(Sketcher.Constraint("Vertical", 28, 2, 34, 2))
sketch2.addConstraint(Sketcher.Constraint("Equal", 14, 23))
sketch2.addConstraint(Sketcher.Constraint("Equal", 16, 25))
sketch2.addConstraint(Sketcher.Constraint("Equal", 6, 32))
sketch2.addConstraint(Sketcher.Constraint("Equal", 27, 9))
sketch2.addConstraint(Sketcher.Constraint("Equal", 11, 13))
sketch2.addConstraint(Sketcher.Constraint("Equal", 9, 15))
sketch2.addConstraint(Sketcher.Constraint("Radius", 12, 45.0))
sketch2.addConstraint(Sketcher.Constraint("Radius", 19, 44.5))
sketch2.addConstraint(Sketcher.Constraint("DistanceX", 1, 1, 1, 2, 408.0))
sketch2.addConstraint(Sketcher.Constraint("DistanceX", 4, 2, 4, 1, 59.0))
sketch2.addConstraint(Sketcher.Constraint("DistanceX", 8, 2, 8, 1, 60.0))
sketch2.addConstraint(Sketcher.Constraint("DistanceY", 0, 2, 0, 1, 258.0))
sketch2.addConstraint(Sketcher.Constraint("DistanceY", 5, 1, 5, 2, 132.0))
sketch2.addConstraint(Sketcher.Constraint("DistanceY", 17, 1, 17, 2, 134.0))
sketch2.addConstraint(Sketcher.Constraint("DistanceX", 10, 1, 10, 2, 201.5))
sketch2.addConstraint(Sketcher.Constraint("DistanceX", 0, 2, 31, 3, 204.0))
sketch2.addConstraint(Sketcher.Constraint("DistanceY", 0, 2, 31, 3, 129.0))
sketch2.addConstraint(Sketcher.Constraint("DistanceX", 0, 2, 4, 2, 2.0))
sketch2.addConstraint(Sketcher.Constraint("DistanceY", 0, 2, 4, 2, 63.0))
sketch2.addConstraint(Sketcher.Constraint("DistanceX", 12, 3, -1, 1, 116.046212))
sketch2.addConstraint(Sketcher.Constraint("DistanceY", -1, 1, 12, 3, 9.93784))
sketch2.setExpression("Constraints[94]", "Params.sketch2_radius")
sketch2.setExpression("Constraints[95]", "Params.sketch2_radius2")
sketch2.setExpression("Constraints[96]", "Params.sketch2_width")
sketch2.setExpression("Constraints[97]", "Params.sketch2_width2")
sketch2.setExpression("Constraints[98]", "Params.sketch2_width3")
pad2 = body.newObject("PartDesign::Pad", "Pad001")
pad2.Profile = sketch2
pad2.setExpression("Length", "Params.pad2_length")

doc.recompute()
